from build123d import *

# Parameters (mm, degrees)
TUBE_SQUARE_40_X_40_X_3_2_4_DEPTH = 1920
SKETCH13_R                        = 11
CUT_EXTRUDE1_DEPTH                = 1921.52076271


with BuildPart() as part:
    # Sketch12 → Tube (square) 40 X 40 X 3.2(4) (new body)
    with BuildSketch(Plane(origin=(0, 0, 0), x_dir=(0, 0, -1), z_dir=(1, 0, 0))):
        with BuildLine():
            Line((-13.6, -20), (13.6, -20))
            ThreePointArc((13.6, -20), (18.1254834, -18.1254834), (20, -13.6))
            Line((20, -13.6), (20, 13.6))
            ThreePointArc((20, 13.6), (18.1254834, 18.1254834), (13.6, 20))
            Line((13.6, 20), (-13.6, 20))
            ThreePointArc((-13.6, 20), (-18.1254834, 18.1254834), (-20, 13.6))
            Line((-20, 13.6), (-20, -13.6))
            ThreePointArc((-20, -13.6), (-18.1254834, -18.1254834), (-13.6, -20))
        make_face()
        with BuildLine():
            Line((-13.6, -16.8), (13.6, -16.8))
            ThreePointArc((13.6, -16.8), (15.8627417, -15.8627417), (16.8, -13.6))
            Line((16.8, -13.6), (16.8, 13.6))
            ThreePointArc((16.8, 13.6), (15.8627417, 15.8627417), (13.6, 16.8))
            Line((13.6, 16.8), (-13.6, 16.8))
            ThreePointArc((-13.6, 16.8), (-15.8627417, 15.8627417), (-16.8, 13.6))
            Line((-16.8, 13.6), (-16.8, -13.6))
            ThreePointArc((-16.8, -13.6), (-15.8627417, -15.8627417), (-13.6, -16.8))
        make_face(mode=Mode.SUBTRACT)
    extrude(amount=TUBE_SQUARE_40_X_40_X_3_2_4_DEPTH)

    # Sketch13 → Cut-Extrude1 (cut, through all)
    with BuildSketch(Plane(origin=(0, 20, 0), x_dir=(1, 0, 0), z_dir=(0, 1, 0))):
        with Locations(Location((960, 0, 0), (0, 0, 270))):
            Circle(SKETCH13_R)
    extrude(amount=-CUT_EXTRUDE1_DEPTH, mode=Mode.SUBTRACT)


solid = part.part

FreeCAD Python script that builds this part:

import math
import FreeCAD as App
import Part
import Sketcher

V = App.Vector

doc = App.newDocument("Part")
body = doc.addObject("PartDesign::Body", "Body")

sketch1 = body.newObject("Sketcher::SketchObject", "Sketch")
sketch1.AttachmentSupport = (doc.getObject("YZ_Plane"), [""])
sketch1.MapMode = "FlatFace"
sketch1.addGeometry(Part.LineSegment(V(-20, 13.6, 0), V(-20, -13.6, 0)), False)
sketch1.addGeometry(Part.ArcOfCircle(Part.Circle(V(-13.6, -13.6, 0), V(0, 0, 1), 6.4), math.radians(180), math.radians(270)), False)
sketch1.addGeometry(Part.LineSegment(V(-13.6, -20, 0), V(13.6, -20, 0)), False)
sketch1.addGeometry(Part.ArcOfCircle(Part.Circle(V(13.6, -13.6, 0), V(0, 0, 1), 6.4), math.radians(-90), math.radians(0)), False)
sketch1.addGeometry(Part.LineSegment(V(20, -13.6, 0), V(20, 13.6, 0)), False)
sketch1.addGeometry(Part.ArcOfCircle(Part.Circle(V(13.6, 13.6, 0), V(0, 0, 1), 6.4), math.radians(0), math.radians(90)), False)
sketch1.addGeometry(Part.LineSegment(V(13.6, 20, 0), V(-13.6, 20, 0)), False)
sketch1.addGeometry(Part.ArcOfCircle(Part.Circle(V(-13.6, 13.6, 0), V(0, 0, 1), 6.4), math.radians(90), math.radians(180)), False)
sketch1.addGeometry(Part.LineSegment(V(-16.8, -13.6, 0), V(-16.8, 13.6, 0)), False)
sketch1.addGeometry(Part.ArcOfCircle(Part.Circle(V(-13.6, 13.6, 0), V(0, 0, 1), 3.2), math.radians(90), math.radians(180)), False)
sketch1.addGeometry(Part.LineSegment(V(-13.6, 16.8, 0), V(13.6, 16.8, 0)), False)
sketch1.addGeometry(Part.ArcOfCircle(Part.Circle(V(13.6, 13.6, 0), V(0, 0, 1), 3.2), math.radians(0), math.radians(90)), False)
sketch1.addGeometry(Part.LineSegment(V(16.8, 13.6, 0), V(16.8, -13.6, 0)), False)
sketch1.addGeometry(Part.ArcOfCircle(Part.Circle(V(13.6, -13.6, 0), V(0, 0, 1), 3.2), math.radians(-90), math.radians(0)), False)
sketch1.addGeometry(Part.LineSegment(V(13.6, -16.8, 0), V(-13.6, -16.8, 0)), False)
sketch1.addGeometry(Part.ArcOfCircle(Part.Circle(V(-13.6, -13.6, 0), V(0, 0, 1), 3.2), math.radians(180), math.radians(270)), False)
sketch1.addConstraint(Sketcher.Constraint("Tangent", 0, 2, 1, 1))
sketch1.addConstraint(Sketcher.Constraint("Tangent", 1, 2, 2, 1))
sketch1.addConstraint(Sketcher.Constraint("Tangent", 2, 2, 3, 1))
sketch1.addConstraint(Sketcher.Constraint("Tangent", 3, 2, 4, 1))
sketch1.addConstraint(Sketcher.Constraint("Tangent", 4, 2, 5, 1))
sketch1.addConstraint(Sketcher.Constraint("Tangent", 5, 2, 6, 1))
sketch1.addConstraint(Sketcher.Constraint("Tangent", 6, 2, 7, 1))
sketch1.addConstraint(Sketcher.Constraint("Tangent", 7, 2, 0, 1))
sketch1.addConstraint(Sketcher.Constraint("Tangent", 8, 2, 9, 2))
sketch1.addConstraint(Sketcher.Constraint("Tangent", 9, 1, 10, 1))
sketch1.addConstraint(Sketcher.Constraint("Tangent", 10, 2, 11, 2))
sketch1.addConstraint(Sketcher.Constraint("Tangent", 11, 1, 12, 1))
sketch1.addConstraint(Sketcher.Constraint("Tangent", 12, 2, 13, 2))
sketch1.addConstraint(Sketcher.Constraint("Tangent", 13, 1, 14, 1))
sketch1.addConstraint(Sketcher.Constraint("Tangent", 14, 2, 15, 2))
sketch1.addConstraint(Sketcher.Constraint("Tangent", 15, 1, 8, 1))
sketch1.addConstraint(Sketcher.Constraint("Vertical", 0))
sketch1.addConstraint(Sketcher.Constraint("Horizontal", 2))
sketch1.addConstraint(Sketcher.Constraint("Vertical", 4))
sketch1.addConstraint(Sketcher.Constraint("Horizontal", 6))
sketch1.addConstraint(Sketcher.Constraint("Vertical", 8))
sketch1.addConstraint(Sketcher.Constraint("Horizontal", 10))
sketch1.addConstraint(Sketcher.Constraint("Vertical", 12))
sketch1.addConstraint(Sketcher.Constraint("Horizontal", 14))
sketch1.addConstraint(Sketcher.Constraint("Coincident", 9, 3, 7, 3))
sketch1.addConstraint(Sketcher.Constraint("Coincident", 11, 3, 5, 3))
sketch1.addConstraint(Sketcher.Constraint("Coincident", 13, 3, 3, 3))
sketch1.addConstraint(Sketcher.Constraint("Equal", 1, 3))
sketch1.addConstraint(Sketcher.Constraint("Equal", 3, 5))
sketch1.addConstraint(Sketcher.Constraint("Equal", 5, 7))
sketch1.addConstraint(Sketcher.Constraint("Equal", 13, 15))
sketch1.addConstraint(Sketcher.Constraint("Symmetric", 1, 3, 5, 3, -1, 1))
sketch1.addConstraint(Sketcher.Constraint("Equal", 14, 0))
sketch1.addConstraint(Sketcher.Constraint("Radius", 1, 6.4))
sketch1.addConstraint(Sketcher.Constraint("Radius", 9, 3.2))
sketch1.addConstraint(Sketcher.Constraint("DistanceX", 2, 1, 2, 2, 27.2))
pad1 = body.newObject("PartDesign::Pad", "Pad")
pad1.Profile = sketch1
pad1.Length = 1920

sketch2 = body.newObject("Sketcher::SketchObject", "Sketch001")
sketch2.AttachmentSupport = (doc.getObject("XZ_Plane"), [""])
sketch2.MapMode = "FlatFace"
sketch2.AttachmentOffset = App.Placement(V(0, 0, -20), App.Rotation())
sketch2.addGeometry(Part.Circle(V(960, 0, 0), V(0, 0, 1), 11), False)
sketch2.addConstraint(Sketcher.Constraint("PointOnObject", 0, 3, -1))
sketch2.addConstraint(Sketcher.Constraint("Diameter", 0, 22.0))
sketch2.addConstraint(Sketcher.Constraint("DistanceX", -1, 1, 0, 3, 960.0))
pocket1 = body.newObject("PartDesign::Pocket", "Pocket")
pocket1.Profile = sketch2
pocket1.Type = "ThroughAll"
pocket1.Reversed = True

doc.recompute()
